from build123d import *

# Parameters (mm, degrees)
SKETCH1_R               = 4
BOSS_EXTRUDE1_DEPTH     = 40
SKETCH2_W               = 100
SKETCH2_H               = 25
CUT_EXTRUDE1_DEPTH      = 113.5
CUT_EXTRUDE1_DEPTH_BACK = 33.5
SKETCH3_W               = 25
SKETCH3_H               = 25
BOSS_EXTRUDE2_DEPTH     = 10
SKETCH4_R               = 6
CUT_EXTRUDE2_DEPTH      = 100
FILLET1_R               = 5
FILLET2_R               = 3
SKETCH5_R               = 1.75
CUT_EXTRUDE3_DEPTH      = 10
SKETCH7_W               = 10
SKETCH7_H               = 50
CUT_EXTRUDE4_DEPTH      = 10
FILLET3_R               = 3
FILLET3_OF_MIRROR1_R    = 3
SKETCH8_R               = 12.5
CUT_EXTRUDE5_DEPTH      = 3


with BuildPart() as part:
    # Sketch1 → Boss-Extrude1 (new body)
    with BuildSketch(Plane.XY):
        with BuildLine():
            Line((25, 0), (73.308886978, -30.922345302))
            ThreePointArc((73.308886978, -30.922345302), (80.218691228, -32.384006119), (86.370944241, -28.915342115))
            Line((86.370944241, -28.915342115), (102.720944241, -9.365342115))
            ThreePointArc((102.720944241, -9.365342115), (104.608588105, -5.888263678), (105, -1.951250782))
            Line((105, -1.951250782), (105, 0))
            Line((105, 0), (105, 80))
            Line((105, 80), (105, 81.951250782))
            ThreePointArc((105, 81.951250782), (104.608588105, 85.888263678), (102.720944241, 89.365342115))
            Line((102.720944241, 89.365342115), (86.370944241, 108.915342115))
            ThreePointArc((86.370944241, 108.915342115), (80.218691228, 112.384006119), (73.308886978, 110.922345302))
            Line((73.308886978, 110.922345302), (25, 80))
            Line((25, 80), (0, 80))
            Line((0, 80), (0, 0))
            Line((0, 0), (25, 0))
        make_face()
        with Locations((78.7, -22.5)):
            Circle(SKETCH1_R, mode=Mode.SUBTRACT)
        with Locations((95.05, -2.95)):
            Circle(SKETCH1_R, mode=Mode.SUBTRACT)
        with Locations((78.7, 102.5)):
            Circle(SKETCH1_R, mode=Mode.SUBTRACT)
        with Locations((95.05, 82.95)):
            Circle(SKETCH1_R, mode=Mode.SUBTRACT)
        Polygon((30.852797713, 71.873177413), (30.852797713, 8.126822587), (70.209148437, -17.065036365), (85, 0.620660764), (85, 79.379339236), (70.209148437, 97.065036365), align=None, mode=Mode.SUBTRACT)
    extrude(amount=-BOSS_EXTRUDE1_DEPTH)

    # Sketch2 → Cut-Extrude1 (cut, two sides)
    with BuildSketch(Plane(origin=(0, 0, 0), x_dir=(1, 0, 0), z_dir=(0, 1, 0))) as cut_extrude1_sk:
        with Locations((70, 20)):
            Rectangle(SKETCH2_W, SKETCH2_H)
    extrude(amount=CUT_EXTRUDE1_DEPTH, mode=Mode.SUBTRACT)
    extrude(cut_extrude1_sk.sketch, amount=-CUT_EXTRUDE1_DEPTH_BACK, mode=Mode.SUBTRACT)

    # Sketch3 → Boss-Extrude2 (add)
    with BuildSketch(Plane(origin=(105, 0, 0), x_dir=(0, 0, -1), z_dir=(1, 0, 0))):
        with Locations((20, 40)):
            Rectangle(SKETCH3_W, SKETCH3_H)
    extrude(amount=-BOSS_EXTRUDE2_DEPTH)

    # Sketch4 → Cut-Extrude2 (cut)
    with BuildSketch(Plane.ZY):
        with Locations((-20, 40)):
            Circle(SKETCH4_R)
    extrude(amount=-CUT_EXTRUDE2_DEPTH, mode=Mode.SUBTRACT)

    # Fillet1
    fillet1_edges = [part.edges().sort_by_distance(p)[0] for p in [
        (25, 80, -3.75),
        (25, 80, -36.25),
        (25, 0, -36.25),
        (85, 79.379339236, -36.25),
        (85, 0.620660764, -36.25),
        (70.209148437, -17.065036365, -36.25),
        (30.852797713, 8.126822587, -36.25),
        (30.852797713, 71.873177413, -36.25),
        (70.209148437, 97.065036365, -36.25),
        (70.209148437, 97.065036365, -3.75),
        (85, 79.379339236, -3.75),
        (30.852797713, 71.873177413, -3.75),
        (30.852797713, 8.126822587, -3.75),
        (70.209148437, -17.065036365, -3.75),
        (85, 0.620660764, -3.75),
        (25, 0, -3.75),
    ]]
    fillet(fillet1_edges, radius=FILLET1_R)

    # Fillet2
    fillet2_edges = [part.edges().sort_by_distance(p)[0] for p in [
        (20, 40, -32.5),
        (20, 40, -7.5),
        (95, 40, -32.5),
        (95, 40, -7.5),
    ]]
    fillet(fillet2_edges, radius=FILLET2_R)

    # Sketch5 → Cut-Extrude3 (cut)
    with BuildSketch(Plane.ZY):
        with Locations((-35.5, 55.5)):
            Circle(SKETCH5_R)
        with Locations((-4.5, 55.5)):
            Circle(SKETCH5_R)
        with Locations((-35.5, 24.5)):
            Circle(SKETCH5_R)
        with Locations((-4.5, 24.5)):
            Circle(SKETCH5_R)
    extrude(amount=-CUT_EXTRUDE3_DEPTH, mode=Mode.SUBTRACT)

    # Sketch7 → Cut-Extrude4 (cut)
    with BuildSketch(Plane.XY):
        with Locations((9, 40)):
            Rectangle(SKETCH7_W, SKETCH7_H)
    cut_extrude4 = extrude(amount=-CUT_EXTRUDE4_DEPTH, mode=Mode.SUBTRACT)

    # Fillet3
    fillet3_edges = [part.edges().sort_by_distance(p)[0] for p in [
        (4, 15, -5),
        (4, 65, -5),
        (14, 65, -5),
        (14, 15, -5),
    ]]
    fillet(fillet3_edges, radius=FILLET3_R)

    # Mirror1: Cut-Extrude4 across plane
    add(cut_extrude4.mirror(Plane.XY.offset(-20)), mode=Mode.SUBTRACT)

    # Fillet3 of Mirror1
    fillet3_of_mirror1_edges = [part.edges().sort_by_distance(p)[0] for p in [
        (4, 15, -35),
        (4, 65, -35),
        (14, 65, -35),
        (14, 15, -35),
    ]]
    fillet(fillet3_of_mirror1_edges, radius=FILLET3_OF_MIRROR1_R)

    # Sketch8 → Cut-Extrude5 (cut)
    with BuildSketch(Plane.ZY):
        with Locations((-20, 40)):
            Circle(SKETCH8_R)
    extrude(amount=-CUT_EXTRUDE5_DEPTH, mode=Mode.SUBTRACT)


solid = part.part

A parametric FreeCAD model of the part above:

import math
import FreeCAD as App
import Part
import Sketcher
from FreeCAD import Vector
Q = App.Units.Quantity


def edges_at(feature, points):
    """Names of the edges that pass closest to the given points."""
    edges = feature.Shape.Edges
    near = lambda p: min(range(len(edges)), key=lambda i: edges[i].distToShape(Part.Vertex(*p))[0])
    return sorted({f"Edge{near(p) + 1}" for p in points})


def add_polygon(sketch, points):
    """Adds a closed chain of lines whose ends are joined by coincident constraints."""
    first, n = sketch.GeometryCount, len(points)
    for a, b in zip(points, points[1:] + points[:1]):
        sketch.addGeometry(Part.LineSegment(App.Vector(*a, 0), App.Vector(*b, 0)), False)
    for i in range(n):
        sketch.addConstraint(Sketcher.Constraint("Coincident", first + i, 2, first + (i + 1) % n, 1))

doc = App.newDocument("Part")
body = doc.addObject("PartDesign::Body", "Body")

sketch1 = body.newObject("Sketcher::SketchObject", "Sketch")
sketch1.AttachmentSupport = (doc.getObject("XY_Plane"), [""])
sketch1.MapMode = "FlatFace"
sketch1.addGeometry(Part.LineSegment(Vector(25, 0, 0), Vector(73.308887, -30.922345, 0)), False)
sketch1.addGeometry(Part.ArcOfCircle(Part.Circle(Vector(78.7, -22.5, 0), Vector(0, 0, 1), 10), math.radians(-122.623162), math.radians(-39.906317)), False)
sketch1.addGeometry(Part.LineSegment(Vector(86.370944, -28.915342, 0), Vector(102.720944, -9.365342, 0)), False)
sketch1.addGeometry(Part.ArcOfCircle(Part.Circle(Vector(95.05, -2.95, 0), Vector(0, 0, 1), 10), math.radians(-39.906317), math.radians(5.731968)), False)
sketch1.addGeometry(Part.LineSegment(Vector(105, -1.951251, 0), Vector(105, 81.951251, 0)), False)
sketch1.addGeometry(Part.ArcOfCircle(Part.Circle(Vector(95.05, 82.95, 0), Vector(0, 0, 1), 10), math.radians(-5.731968), math.radians(39.906317)), False)
sketch1.addGeometry(Part.LineSegment(Vector(102.720944, 89.365342, 0), Vector(86.370944, 108.915342, 0)), False)
sketch1.addGeometry(Part.ArcOfCircle(Part.Circle(Vector(78.7, 102.5, 0), Vector(0, 0, 1), 10), math.radians(39.906317), math.radians(122.623162)), False)
sketch1.addGeometry(Part.LineSegment(Vector(73.308887, 110.922345, 0), Vector(25, 80, 0)), False)
sketch1.addGeometry(Part.LineSegment(Vector(25, 80, 0), Vector(0, 80, 0)), False)
sketch1.addGeometry(Part.LineSegment(Vector(0, 80, 0), Vector(0, 0, 0)), False)
sketch1.addGeometry(Part.LineSegment(Vector(0, 0, 0), Vector(25, 0, 0)), False)
sketch1.addGeometry(Part.Circle(Vector(78.7, -22.5, 0), Vector(0, 0, 1), 4), False)
sketch1.addGeometry(Part.Circle(Vector(95.05, -2.95, 0), Vector(0, 0, 1), 4), False)
add_polygon(sketch1, [(30.852798, 8.126823), (30.852798, 71.873177), (70.209148, 97.065036), (85, 79.379339), (85, 0.620661), (70.209148, -17.065036)])
sketch1.addGeometry(Part.Circle(Vector(78.7, 102.5, 0), Vector(0, 0, 1), 4), False)
sketch1.addGeometry(Part.Circle(Vector(95.05, 82.95, 0), Vector(0, 0, 1), 4), False)
sketch1.addConstraint([
    Sketcher.Constraint("Tangent", 0, 2, 1, 1),
    Sketcher.Constraint("Tangent", 1, 2, 2, 1),
    Sketcher.Constraint("Tangent", 2, 2, 3, 1),
    Sketcher.Constraint("Coincident", 3, 2, 4, 1),
    Sketcher.Constraint("Coincident", 4, 2, 5, 1),
    Sketcher.Constraint("Tangent", 5, 2, 6, 1),
    Sketcher.Constraint("Tangent", 6, 2, 7, 1),
    Sketcher.Constraint("Tangent", 7, 2, 8, 1),
    Sketcher.Constraint("Coincident", 8, 2, 9, 1),
    Sketcher.Constraint("Coincident", 9, 2, 10, 1),
    Sketcher.Constraint("Coincident", 10, 2, 11, 1),
    Sketcher.Constraint("Coincident", 11, 2, 0, 1),
    Sketcher.Constraint("Vertical", 4),
    Sketcher.Constraint("Horizontal", 9),
    Sketcher.Constraint("Vertical", 10),
    Sketcher.Constraint("Horizontal", 11),
    Sketcher.Constraint("Vertical", 14),
    Sketcher.Constraint("Vertical", 17),
    Sketcher.Constraint("Coincident", 10, 2, -1, 1),
    Sketcher.Constraint("Coincident", 12, 3, 1, 3),
    Sketcher.Constraint("Coincident", 13, 3, 3, 3),
    Sketcher.Constraint("Coincident", 20, 3, 7, 3),
    Sketcher.Constraint("Coincident", 21, 3, 5, 3),
    Sketcher.Constraint("Equal", 1, 3),
    Sketcher.Constraint("Equal", 3, 5),
    Sketcher.Constraint("Equal", 5, 7),
    Sketcher.Constraint("Equal", 12, 13),
    Sketcher.Constraint("Equal", 13, 20),
    Sketcher.Constraint("Equal", 20, 21),
    Sketcher.Constraint("Parallel", 8, 15),
    Sketcher.Constraint("Parallel", 6, 16),
    Sketcher.Constraint("Parallel", 2, 18),
    Sketcher.Constraint("Parallel", 0, 19),
    Sketcher.Constraint("Vertical", 3, 3, 5, 3),
    Sketcher.Constraint("Vertical", 1, 3, 7, 3),
    Sketcher.Constraint("Vertical", 2, 2, 5, 2),
    Sketcher.Constraint("Vertical", 0, 2, 7, 2),
    Sketcher.Constraint("Vertical", 8, 2, 11, 2),
    Sketcher.Constraint("Vertical", 15, 2, 18, 2),
    Sketcher.Constraint("Diameter", 12, Q("8 mm")),
    Sketcher.Constraint("Radius", 1, Q("10 mm")),
    Sketcher.Constraint("DistanceX", 9, 2, 9, 1, Q("25 mm")),
    Sketcher.Constraint("DistanceY", 10, 2, 10, 1, Q("80 mm")),
    Sketcher.Constraint("DistanceX", -1, 1, 3, 2, Q("105 mm")),
    Sketcher.Constraint("DistanceX", -1, 1, 16, 2, Q("85 mm")),
    Sketcher.Constraint("DistanceY", 1, 3, 7, 3, Q("125 mm")),
    Sketcher.Constraint("DistanceX", -1, 1, 1, 3, Q("78.7 mm")),
    Sketcher.Constraint("DistanceY", 3, 3, 5, 3, Q("85.9 mm")),
    Sketcher.Constraint("DistanceX", -1, 1, 3, 3, Q("95.05 mm")),
    Sketcher.Constraint("DistanceY", 17, 2, 17, 1, Q("78.758678 mm")),
    Sketcher.Constraint("DistanceY", 14, 1, 14, 2, Q("63.746355 mm")),
    Sketcher.Constraint("DistanceX", -1, 1, 15, 2, Q("70.209148 mm")),
    Sketcher.Constraint("DistanceY", -1, 1, 16, 2, Q("79.379339 mm")),
])
pad1 = body.newObject("PartDesign::Pad", "Pad")
pad1.Profile = sketch1
pad1.Length = 40
pad1.Reversed = True

sketch2 = body.newObject("Sketcher::SketchObject", "Sketch001")
sketch2.AttachmentSupport = (doc.getObject("XZ_Plane"), [""])
sketch2.MapMode = "FlatFace"
add_polygon(sketch2, [(20, -32.5), (20, -7.5), (120, -7.5), (120, -32.5)])
sketch2.addConstraint([
    Sketcher.Constraint("Vertical", 0),
    Sketcher.Constraint("Horizontal", 1),
    Sketcher.Constraint("Vertical", 2),
    Sketcher.Constraint("Horizontal", 3),
    Sketcher.Constraint("DistanceX", 1, 1, 1, 2, Q("100 mm")),
    Sketcher.Constraint("DistanceY", 0, 1, 0, 2, Q("25 mm")),
    Sketcher.Constraint("DistanceX", -1, 1, 0, 2, Q("20 mm")),
    Sketcher.Constraint("DistanceY", 0, 2, -1, 1, Q("7.5 mm")),
])
pocket1 = body.newObject("PartDesign::Pocket", "Pocket")
pocket1.Profile = sketch2
pocket1.Type = "ThroughAll"
pocket1.Midplane = True

sketch3 = body.newObject("Sketcher::SketchObject", "Sketch002")
sketch3.AttachmentSupport = (doc.getObject("YZ_Plane"), [""])
sketch3.MapMode = "FlatFace"
sketch3.AttachmentOffset = App.Placement(Vector(0, 0, 105), App.Rotation())
add_polygon(sketch3, [(52.5, -7.5), (27.5, -7.5), (27.5, -32.5), (52.5, -32.5)])
sketch3.addConstraint([
    Sketcher.Constraint("Horizontal", 0),
    Sketcher.Constraint("Vertical", 1),
    Sketcher.Constraint("Horizontal", 2),
    Sketcher.Constraint("Vertical", 3),
    Sketcher.Constraint("Equal", 2, 1),
    Sketcher.Constraint("DistanceX", 0, 2, 0, 1, Q("25 mm")),
    Sketcher.Constraint("DistanceX", -1, 1, 0, 2, Q("27.5 mm")),
    Sketcher.Constraint("DistanceY", 0, 2, -1, 1, Q("7.5 mm")),
])
pad2 = body.newObject("PartDesign::Pad", "Pad001")
pad2.Profile = sketch3
pad2.Length = 10
pad2.Reversed = True

sketch4 = body.newObject("Sketcher::SketchObject", "Sketch003")
sketch4.AttachmentSupport = (doc.getObject("YZ_Plane"), [""])
sketch4.MapMode = "FlatFace"
sketch4.addGeometry(Part.Circle(Vector(40, -20, 0), Vector(0, 0, 1), 6), False)
sketch4.addConstraint([
    Sketcher.Constraint("Diameter", 0, Q("12 mm")),
    Sketcher.Constraint("DistanceX", -1, 1, 0, 3, Q("40 mm")),
    Sketcher.Constraint("DistanceY", 0, 3, -1, 1, Q("20 mm")),
])
pocket2 = body.newObject("PartDesign::Pocket", "Pocket001")
pocket2.Profile = sketch4
pocket2.Length = 100
pocket2.Reversed = True
doc.recompute()

fillet = body.newObject("PartDesign::Fillet", "Fillet")
fillet.Base = (pocket2, edges_at(pocket2, [
    (25, 80, -3.75),
    (25, 80, -36.25),
    (25, 0, -36.25),
    (85, 79.379, -36.25),
    (85, 0.621, -36.25),
    (70.209, -17.065, -36.25),
    (30.853, 8.127, -36.25),
    (30.853, 71.873, -36.25),
    (70.209, 97.065, -36.25),
    (70.209, 97.065, -3.75),
    (85, 79.379, -3.75),
    (30.853, 71.873, -3.75),
    (30.853, 8.127, -3.75),
    (70.209, -17.065, -3.75),
    (85, 0.621, -3.75),
    (25, 0, -3.75),
]))
fillet.Radius = 5
doc.recompute()

fillet2 = body.newObject("PartDesign::Fillet", "Fillet001")
fillet2.Base = (fillet, edges_at(fillet, [
    (20, 40, -32.5),
    (20, 40, -7.5),
    (95, 40, -32.5),
    (95, 40, -7.5),
]))
fillet2.Radius = 3

sketch5 = body.newObject("Sketcher::SketchObject", "Sketch004")
sketch5.AttachmentSupport = (doc.getObject("YZ_Plane"), [""])
sketch5.MapMode = "FlatFace"
sketch5.addGeometry([
    Part.Circle(Vector(55.5, -35.5, 0), Vector(0, 0, 1), 1.75),
    Part.Circle(Vector(55.5, -4.5, 0), Vector(0, 0, 1), 1.75),
    Part.Circle(Vector(24.5, -35.5, 0), Vector(0, 0, 1), 1.75),
    Part.Circle(Vector(24.5, -4.5, 0), Vector(0, 0, 1), 1.75),
], False)
sketch5.addConstraint([
    Sketcher.Constraint("Equal", 0, 1),
    Sketcher.Constraint("Equal", 1, 2),
    Sketcher.Constraint("Equal", 2, 3),
    Sketcher.Constraint("Horizontal", 0, 3, 2, 3),
    Sketcher.Constraint("Horizontal", 1, 3, 3, 3),
    Sketcher.Constraint("Vertical", 0, 3, 1, 3),
    Sketcher.Constraint("Vertical", 2, 3, 3, 3),
    Sketcher.Constraint("Diameter", 0, Q("3.5 mm")),
    Sketcher.Constraint("DistanceY", 0, 3, 1, 3, Q("31 mm")),
    Sketcher.Constraint("DistanceX", 2, 3, 0, 3, Q("31 mm")),
    Sketcher.Constraint("DistanceX", -1, 1, 0, 3, Q("55.5 mm")),
    Sketcher.Constraint("DistanceY", 0, 3, -1, 1, Q("35.5 mm")),
])
pocket3 = body.newObject("PartDesign::Pocket", "Pocket002")
pocket3.Profile = sketch5
pocket3.Length = 10
pocket3.Reversed = True

sketch6 = body.newObject("Sketcher::SketchObject", "Sketch005")
sketch6.AttachmentSupport = (doc.getObject("XY_Plane"), [""])
sketch6.MapMode = "FlatFace"
add_polygon(sketch6, [(4, 65), (4, 15), (14, 15), (14, 65)])
sketch6.addConstraint([
    Sketcher.Constraint("Vertical", 0),
    Sketcher.Constraint("Horizontal", 1),
    Sketcher.Constraint("Vertical", 2),
    Sketcher.Constraint("Horizontal", 3),
    Sketcher.Constraint("DistanceX", 1, 1, 1, 2, Q("10 mm")),
    Sketcher.Constraint("DistanceY", 0, 2, 0, 1, Q("50 mm")),
    Sketcher.Constraint("DistanceX", -1, 1, 0, 2, Q("4 mm")),
    Sketcher.Constraint("DistanceY", -1, 1, 0, 2, Q("15 mm")),
])
pocket4 = body.newObject("PartDesign::Pocket", "Pocket003")
pocket4.Profile = sketch6
pocket4.Length = 10
doc.recompute()

fillet3 = body.newObject("PartDesign::Fillet", "Fillet002")
fillet3.Base = (pocket4, edges_at(pocket4, [
    (4, 15, -5),
    (4, 65, -5),
    (14, 65, -5),
    (14, 15, -5),
]))
fillet3.Radius = 3
doc.recompute()

datumplane = body.newObject("PartDesign::Plane", "DatumPlane")
datumplane.AttachmentSupport = (doc.getObject("XY_Plane"), [""])
datumplane.MapMode = "FlatFace"
datumplane.AttachmentOffset = App.Placement(Vector(0, 0, -20), App.Rotation())
mirrored = body.newObject("PartDesign::Mirrored", "Mirrored")
mirrored.Originals = [pocket4]
mirrored.MirrorPlane = (datumplane, [""])
body.Tip = mirrored
doc.recompute()

fillet4 = body.newObject("PartDesign::Fillet", "Fillet003")
fillet4.Base = (mirrored, edges_at(mirrored, [
    (4, 15, -35),
    (4, 65, -35),
    (14, 65, -35),
    (14, 15, -35),
]))
fillet4.Radius = 3

sketch7 = body.newObject("Sketcher::SketchObject", "Sketch006")
sketch7.AttachmentSupport = (doc.getObject("YZ_Plane"), [""])
sketch7.MapMode = "FlatFace"
sketch7.addGeometry(Part.Circle(Vector(40, -20, 0), Vector(0, 0, 1), 12.5), False)
sketch7.addConstraint([
    Sketcher.Constraint("Diameter", 0, Q("25 mm")),
    Sketcher.Constraint("DistanceX", -1, 1, 0, 3, Q("40 mm")),
    Sketcher.Constraint("DistanceY", 0, 3, -1, 1, Q("20 mm")),
])
pocket5 = body.newObject("PartDesign::Pocket", "Pocket004")
pocket5.Profile = sketch7
pocket5.Length = 3
pocket5.Reversed = True

doc.recompute()
